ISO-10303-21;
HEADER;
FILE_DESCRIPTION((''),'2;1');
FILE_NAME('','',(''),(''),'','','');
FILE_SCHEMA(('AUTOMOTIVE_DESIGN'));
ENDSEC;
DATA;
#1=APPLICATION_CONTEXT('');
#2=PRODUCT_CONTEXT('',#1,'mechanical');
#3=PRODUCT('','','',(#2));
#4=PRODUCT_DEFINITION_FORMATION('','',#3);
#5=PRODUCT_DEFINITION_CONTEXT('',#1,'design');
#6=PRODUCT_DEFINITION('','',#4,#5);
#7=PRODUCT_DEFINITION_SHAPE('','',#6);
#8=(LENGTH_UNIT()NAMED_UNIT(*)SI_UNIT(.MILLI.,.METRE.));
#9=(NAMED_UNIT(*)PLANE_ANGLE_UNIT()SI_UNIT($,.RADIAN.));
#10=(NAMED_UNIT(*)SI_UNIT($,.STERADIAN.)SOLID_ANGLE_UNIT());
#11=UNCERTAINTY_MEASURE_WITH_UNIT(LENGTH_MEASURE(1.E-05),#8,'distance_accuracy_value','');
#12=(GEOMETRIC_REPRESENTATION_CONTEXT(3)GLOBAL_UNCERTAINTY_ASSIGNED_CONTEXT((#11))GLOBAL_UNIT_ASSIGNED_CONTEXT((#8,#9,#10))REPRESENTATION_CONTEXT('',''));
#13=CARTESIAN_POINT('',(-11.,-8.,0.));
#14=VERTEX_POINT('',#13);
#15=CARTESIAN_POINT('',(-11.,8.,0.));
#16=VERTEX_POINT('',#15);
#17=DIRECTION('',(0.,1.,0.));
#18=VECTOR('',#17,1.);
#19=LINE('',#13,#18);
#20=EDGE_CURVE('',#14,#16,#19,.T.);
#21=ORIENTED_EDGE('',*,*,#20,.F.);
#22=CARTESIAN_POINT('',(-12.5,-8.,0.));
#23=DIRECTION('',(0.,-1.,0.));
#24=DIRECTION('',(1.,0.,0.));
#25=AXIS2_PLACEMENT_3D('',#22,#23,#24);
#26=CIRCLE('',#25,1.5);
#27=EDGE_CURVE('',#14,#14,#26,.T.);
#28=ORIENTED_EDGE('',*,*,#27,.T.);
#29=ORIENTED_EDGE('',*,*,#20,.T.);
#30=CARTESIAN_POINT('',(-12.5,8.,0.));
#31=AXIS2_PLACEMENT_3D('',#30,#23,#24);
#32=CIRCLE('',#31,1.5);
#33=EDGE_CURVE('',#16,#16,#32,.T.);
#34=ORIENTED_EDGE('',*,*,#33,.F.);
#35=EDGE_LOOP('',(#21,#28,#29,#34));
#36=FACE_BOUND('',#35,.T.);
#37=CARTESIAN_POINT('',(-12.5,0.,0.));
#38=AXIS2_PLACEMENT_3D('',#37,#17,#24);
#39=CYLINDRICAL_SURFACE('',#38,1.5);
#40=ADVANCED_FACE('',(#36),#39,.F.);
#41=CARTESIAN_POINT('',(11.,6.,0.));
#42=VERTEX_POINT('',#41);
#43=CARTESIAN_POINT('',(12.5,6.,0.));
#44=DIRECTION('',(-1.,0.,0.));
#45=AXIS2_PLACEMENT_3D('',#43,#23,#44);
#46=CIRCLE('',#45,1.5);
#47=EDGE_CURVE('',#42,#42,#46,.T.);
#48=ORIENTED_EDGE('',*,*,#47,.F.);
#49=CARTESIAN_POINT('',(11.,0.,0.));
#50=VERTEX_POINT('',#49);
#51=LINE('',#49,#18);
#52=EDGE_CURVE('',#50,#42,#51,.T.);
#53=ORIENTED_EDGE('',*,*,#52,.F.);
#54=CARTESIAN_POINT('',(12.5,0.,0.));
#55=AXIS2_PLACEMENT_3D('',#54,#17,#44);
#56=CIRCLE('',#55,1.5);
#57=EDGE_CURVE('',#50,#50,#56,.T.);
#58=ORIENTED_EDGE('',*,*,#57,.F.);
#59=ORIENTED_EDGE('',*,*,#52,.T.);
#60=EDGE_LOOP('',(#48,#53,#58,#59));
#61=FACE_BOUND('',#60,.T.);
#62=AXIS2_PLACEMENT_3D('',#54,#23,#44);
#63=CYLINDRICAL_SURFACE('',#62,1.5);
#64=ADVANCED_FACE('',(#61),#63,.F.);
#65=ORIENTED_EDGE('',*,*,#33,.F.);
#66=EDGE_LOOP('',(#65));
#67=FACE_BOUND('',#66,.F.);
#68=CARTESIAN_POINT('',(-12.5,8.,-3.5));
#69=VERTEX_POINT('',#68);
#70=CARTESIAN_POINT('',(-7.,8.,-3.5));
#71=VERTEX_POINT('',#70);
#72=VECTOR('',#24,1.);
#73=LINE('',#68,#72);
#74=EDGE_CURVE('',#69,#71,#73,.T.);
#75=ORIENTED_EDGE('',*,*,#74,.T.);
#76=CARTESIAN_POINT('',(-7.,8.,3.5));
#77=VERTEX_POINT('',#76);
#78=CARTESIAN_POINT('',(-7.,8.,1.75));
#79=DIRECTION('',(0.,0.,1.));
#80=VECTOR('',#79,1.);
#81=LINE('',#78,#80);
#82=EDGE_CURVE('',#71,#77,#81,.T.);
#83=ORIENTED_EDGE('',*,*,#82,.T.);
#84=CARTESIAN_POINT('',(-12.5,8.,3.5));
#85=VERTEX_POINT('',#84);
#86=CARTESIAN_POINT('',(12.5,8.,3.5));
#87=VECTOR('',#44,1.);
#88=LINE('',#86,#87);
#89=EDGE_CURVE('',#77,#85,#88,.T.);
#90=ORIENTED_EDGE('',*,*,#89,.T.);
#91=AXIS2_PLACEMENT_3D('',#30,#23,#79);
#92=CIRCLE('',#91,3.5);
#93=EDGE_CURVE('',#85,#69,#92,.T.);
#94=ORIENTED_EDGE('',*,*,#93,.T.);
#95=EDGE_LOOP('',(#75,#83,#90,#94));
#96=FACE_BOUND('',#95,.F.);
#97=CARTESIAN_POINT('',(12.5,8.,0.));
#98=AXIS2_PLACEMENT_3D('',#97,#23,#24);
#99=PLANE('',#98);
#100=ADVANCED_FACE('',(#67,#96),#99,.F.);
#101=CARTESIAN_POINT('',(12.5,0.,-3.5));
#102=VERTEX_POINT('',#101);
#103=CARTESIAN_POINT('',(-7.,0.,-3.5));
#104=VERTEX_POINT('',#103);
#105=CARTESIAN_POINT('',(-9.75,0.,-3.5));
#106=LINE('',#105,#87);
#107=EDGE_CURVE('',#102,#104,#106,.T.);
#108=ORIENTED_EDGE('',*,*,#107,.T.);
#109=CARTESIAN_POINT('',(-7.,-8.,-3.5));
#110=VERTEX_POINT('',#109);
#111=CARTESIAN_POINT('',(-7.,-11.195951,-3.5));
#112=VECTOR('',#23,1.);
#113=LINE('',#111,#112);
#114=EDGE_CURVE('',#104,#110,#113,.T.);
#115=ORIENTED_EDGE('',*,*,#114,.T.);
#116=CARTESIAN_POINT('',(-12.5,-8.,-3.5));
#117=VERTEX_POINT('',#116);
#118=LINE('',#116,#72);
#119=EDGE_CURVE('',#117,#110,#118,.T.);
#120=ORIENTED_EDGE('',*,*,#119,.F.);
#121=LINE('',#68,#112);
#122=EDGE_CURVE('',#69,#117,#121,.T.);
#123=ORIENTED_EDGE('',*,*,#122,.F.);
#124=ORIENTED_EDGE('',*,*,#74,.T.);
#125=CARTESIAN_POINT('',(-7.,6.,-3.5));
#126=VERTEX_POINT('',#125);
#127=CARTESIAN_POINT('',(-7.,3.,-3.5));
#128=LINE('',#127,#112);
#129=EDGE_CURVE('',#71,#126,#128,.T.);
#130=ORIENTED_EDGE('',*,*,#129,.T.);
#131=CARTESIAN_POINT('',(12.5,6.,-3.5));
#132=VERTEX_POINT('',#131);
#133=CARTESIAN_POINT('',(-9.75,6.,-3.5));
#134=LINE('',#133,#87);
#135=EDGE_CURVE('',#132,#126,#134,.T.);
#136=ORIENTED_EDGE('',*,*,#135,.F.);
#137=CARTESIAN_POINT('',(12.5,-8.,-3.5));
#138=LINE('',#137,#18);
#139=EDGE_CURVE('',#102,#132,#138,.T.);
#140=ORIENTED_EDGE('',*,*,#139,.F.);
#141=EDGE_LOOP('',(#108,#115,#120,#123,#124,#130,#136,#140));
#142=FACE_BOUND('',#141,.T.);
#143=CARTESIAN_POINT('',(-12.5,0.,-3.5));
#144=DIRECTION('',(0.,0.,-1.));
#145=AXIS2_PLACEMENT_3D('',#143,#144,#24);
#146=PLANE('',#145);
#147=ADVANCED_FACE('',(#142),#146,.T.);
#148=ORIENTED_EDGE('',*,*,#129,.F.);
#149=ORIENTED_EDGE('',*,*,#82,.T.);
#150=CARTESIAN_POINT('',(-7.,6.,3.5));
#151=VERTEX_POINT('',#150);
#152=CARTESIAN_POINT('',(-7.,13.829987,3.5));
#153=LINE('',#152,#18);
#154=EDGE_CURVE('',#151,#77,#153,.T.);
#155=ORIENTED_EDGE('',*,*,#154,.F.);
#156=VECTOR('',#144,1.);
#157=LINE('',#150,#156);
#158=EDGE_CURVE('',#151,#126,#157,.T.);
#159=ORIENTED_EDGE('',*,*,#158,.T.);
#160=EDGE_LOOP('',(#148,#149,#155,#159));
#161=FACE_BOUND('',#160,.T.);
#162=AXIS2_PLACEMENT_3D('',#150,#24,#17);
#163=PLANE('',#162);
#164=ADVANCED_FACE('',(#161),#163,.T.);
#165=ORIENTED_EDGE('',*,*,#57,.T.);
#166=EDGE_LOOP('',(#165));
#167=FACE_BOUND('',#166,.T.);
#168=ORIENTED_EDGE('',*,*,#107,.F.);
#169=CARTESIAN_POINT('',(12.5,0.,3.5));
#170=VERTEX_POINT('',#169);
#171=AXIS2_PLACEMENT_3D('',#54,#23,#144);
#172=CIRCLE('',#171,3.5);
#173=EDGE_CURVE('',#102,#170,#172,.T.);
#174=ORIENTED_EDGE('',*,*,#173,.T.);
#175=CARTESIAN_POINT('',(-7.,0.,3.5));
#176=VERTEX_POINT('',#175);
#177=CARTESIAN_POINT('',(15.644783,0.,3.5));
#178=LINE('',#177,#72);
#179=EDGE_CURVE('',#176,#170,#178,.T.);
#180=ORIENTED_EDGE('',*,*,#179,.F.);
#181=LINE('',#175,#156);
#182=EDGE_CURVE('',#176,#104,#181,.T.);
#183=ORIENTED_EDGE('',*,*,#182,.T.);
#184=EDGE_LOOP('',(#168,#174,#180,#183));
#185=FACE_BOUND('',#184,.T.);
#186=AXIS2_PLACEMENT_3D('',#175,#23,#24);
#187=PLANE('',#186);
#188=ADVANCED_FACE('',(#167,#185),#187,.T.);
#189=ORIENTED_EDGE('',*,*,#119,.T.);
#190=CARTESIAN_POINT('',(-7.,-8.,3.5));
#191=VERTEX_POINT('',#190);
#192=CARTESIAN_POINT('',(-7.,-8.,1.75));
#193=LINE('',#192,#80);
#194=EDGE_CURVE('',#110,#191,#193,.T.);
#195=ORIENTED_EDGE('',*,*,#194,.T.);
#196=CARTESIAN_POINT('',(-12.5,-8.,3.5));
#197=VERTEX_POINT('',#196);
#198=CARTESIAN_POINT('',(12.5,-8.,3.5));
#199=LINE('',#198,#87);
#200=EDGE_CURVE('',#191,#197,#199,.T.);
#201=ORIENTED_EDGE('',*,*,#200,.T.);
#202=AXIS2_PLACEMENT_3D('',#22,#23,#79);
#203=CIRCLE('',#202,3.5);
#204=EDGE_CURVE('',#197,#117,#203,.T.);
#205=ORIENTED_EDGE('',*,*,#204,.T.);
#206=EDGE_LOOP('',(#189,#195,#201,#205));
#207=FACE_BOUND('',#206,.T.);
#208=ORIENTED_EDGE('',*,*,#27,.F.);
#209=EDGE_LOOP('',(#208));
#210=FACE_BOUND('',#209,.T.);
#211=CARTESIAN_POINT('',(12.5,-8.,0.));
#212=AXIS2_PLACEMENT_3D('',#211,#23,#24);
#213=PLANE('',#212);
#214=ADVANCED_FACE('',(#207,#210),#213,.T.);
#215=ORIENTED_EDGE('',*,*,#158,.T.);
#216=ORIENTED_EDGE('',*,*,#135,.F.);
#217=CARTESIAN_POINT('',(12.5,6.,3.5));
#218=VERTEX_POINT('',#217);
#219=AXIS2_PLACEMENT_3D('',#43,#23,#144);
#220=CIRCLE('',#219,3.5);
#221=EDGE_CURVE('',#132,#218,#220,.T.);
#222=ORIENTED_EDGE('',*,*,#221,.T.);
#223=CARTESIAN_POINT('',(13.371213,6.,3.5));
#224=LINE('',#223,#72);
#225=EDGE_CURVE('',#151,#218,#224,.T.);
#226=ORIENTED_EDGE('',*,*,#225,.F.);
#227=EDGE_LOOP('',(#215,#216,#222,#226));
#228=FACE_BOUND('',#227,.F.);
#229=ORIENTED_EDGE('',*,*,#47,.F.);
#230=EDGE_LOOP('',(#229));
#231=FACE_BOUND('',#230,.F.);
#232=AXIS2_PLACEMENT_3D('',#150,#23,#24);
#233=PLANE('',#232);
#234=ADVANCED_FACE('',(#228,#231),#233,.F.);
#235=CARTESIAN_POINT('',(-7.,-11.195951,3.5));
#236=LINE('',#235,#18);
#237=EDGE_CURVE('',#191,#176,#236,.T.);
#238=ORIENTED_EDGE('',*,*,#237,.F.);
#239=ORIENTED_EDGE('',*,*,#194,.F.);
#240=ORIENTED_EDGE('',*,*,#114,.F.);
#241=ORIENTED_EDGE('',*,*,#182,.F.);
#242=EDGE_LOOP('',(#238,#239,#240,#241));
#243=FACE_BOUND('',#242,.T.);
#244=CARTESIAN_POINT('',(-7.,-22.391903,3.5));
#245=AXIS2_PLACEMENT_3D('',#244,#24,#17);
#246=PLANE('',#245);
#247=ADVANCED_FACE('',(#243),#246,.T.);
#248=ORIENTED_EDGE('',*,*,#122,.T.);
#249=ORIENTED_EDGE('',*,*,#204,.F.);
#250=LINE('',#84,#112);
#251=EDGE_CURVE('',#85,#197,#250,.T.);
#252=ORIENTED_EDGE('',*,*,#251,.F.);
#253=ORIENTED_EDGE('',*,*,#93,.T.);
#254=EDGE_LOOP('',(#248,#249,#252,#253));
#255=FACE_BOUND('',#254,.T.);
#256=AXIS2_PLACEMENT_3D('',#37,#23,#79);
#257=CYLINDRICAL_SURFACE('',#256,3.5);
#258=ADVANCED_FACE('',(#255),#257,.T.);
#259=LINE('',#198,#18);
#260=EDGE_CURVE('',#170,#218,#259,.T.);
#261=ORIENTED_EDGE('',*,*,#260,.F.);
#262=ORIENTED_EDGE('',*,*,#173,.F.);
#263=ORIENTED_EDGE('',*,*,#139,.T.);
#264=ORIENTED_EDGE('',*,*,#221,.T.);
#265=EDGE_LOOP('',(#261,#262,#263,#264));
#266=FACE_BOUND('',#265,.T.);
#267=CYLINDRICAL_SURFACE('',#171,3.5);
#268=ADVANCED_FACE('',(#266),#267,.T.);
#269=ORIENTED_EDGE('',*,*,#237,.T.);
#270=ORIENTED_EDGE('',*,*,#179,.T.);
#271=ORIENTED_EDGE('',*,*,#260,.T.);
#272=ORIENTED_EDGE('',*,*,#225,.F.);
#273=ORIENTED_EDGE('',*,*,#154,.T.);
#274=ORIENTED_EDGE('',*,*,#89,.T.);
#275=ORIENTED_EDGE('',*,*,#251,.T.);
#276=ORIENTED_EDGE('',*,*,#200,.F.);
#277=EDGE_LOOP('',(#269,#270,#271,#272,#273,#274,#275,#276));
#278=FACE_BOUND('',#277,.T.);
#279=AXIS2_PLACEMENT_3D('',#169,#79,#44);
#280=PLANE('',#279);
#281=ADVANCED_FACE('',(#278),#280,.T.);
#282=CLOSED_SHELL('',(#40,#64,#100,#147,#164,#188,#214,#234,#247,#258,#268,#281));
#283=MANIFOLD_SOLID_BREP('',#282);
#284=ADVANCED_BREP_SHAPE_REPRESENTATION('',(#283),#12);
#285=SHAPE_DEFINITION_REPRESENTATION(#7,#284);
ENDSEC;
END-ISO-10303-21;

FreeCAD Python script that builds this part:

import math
import FreeCAD as App
import Part
import Sketcher
Q = App.Units.Quantity

doc = App.newDocument("Part")
body = doc.addObject("PartDesign::Body", "Body")

# Sketch on XZ plane
sketch1 = body.newObject("Sketcher::SketchObject", "Sketch")
sketch1.AttachmentSupport = (doc.getObject("XZ_Plane"), [""])
sketch1.MapMode = "FlatFace"
sketch1.addGeometry([
    Part.LineSegment(App.Vector(12.5, 3.5, 0), App.Vector(-12.5, 3.5, 0)),  # 0
    Part.ArcOfCircle(Part.Circle(App.Vector(-12.5, 0, 0), App.Vector(0, 0, 1), 3.5), math.radians(90), math.radians(270)),  # 1
    Part.LineSegment(App.Vector(-12.5, -3.5, 0), App.Vector(12.5, -3.5, 0)),  # 2
    Part.ArcOfCircle(Part.Circle(App.Vector(12.5, 0, 0), App.Vector(0, 0, 1), 3.5), math.radians(-90), math.radians(90)),  # 3
    Part.Circle(App.Vector(-12.5, 0, 0), App.Vector(0, 0, 1), 1.5),  # 4
    Part.Circle(App.Vector(12.5, 0, 0), App.Vector(0, 0, 1), 1.5),  # 5
], False)
sketch1.addConstraint([
    Sketcher.Constraint("Tangent", 0, 2, 1, 1),
    Sketcher.Constraint("Tangent", 1, 2, 2, 1),
    Sketcher.Constraint("Tangent", 2, 2, 3, 1),
    Sketcher.Constraint("Tangent", 3, 2, 0, 1),
    Sketcher.Constraint("Horizontal", 0),
    Sketcher.Constraint("Horizontal", 2),
    Sketcher.Constraint("Coincident", 4, 3, 1, 3),
    Sketcher.Constraint("Coincident", 5, 3, 3, 3),
    Sketcher.Constraint("Equal", 4, 5),
    Sketcher.Constraint("Symmetric", 1, 3, 3, 3, -1, 1),
    Sketcher.Constraint("Diameter", 4, Q("3 mm")),
    Sketcher.Constraint("Radius", 1, Q("3.5 mm")),
    Sketcher.Constraint("DistanceX", 0, 2, 0, 1, Q("25 mm")),
])
pad1 = body.newObject("PartDesign::Pad", "Pad")
pad1.Profile = sketch1
pad1.Length = 16
pad1.Midplane = True

# Sketch on XY plane
sketch2 = body.newObject("Sketcher::SketchObject", "Sketch001")
sketch2.AttachmentSupport = (doc.getObject("XY_Plane"), [""])
sketch2.MapMode = "FlatFace"
sketch2.AttachmentOffset = App.Placement(App.Vector(0, 0, 3.5), App.Rotation())
sketch2.addGeometry([
    Part.LineSegment(App.Vector(-7, 21.659974, 0), App.Vector(-7, 6, 0)),  # 0
    Part.LineSegment(App.Vector(-7, 6, 0), App.Vector(33.742426, 6, 0)),  # 1
    Part.LineSegment(App.Vector(33.742426, 6, 0), App.Vector(33.742426, 21.659974, 0)),  # 2
    Part.LineSegment(App.Vector(33.742426, 21.659974, 0), App.Vector(-7, 21.659974, 0)),  # 3
    Part.LineSegment(App.Vector(-7, 0, 0), App.Vector(-7, -22.391903, 0)),  # 4
    Part.LineSegment(App.Vector(-7, -22.391903, 0), App.Vector(38.289566, -22.391903, 0)),  # 5
    Part.LineSegment(App.Vector(38.289566, -22.391903, 0), App.Vector(38.289566, 0, 0)),  # 6
    Part.LineSegment(App.Vector(38.289566, 0, 0), App.Vector(-7, 0, 0)),  # 7
], False)
sketch2.addConstraint([
    Sketcher.Constraint("Coincident", 0, 2, 1, 1),
    Sketcher.Constraint("Coincident", 1, 2, 2, 1),
    Sketcher.Constraint("Coincident", 2, 2, 3, 1),
    Sketcher.Constraint("Coincident", 3, 2, 0, 1),
    Sketcher.Constraint("Coincident", 4, 2, 5, 1),
    Sketcher.Constraint("Coincident", 5, 2, 6, 1),
    Sketcher.Constraint("Coincident", 6, 2, 7, 1),
    Sketcher.Constraint("Coincident", 7, 2, 4, 1),
    Sketcher.Constraint("Vertical", 0),
    Sketcher.Constraint("Horizontal", 1),
    Sketcher.Constraint("Vertical", 2),
    Sketcher.Constraint("Horizontal", 3),
    Sketcher.Constraint("Vertical", 4),
    Sketcher.Constraint("Horizontal", 5),
    Sketcher.Constraint("Vertical", 6),
    Sketcher.Constraint("Horizontal", 7),
    Sketcher.Constraint("PointOnObject", 6, 2, -1),
    Sketcher.Constraint("Vertical", 3, 2, 4, 2),
    Sketcher.Constraint("DistanceX", 0, 2, -1, 1, Q("7 mm")),
    Sketcher.Constraint("DistanceY", -1, 1, 0, 2, Q("6 mm")),
    Sketcher.Constraint("DistanceX", 1, 1, 1, 2, Q("40.742426 mm")),
    Sketcher.Constraint("DistanceX", 5, 1, 5, 2, Q("45.289567 mm")),
    Sketcher.Constraint("DistanceY", 0, 2, 0, 1, Q("15.659974 mm")),
    Sketcher.Constraint("DistanceY", 4, 2, 4, 1, Q("22.391903 mm")),
])
pocket1 = body.newObject("PartDesign::Pocket", "Pocket")
pocket1.Profile = sketch2
pocket1.Length = 25.4

doc.recompute()
